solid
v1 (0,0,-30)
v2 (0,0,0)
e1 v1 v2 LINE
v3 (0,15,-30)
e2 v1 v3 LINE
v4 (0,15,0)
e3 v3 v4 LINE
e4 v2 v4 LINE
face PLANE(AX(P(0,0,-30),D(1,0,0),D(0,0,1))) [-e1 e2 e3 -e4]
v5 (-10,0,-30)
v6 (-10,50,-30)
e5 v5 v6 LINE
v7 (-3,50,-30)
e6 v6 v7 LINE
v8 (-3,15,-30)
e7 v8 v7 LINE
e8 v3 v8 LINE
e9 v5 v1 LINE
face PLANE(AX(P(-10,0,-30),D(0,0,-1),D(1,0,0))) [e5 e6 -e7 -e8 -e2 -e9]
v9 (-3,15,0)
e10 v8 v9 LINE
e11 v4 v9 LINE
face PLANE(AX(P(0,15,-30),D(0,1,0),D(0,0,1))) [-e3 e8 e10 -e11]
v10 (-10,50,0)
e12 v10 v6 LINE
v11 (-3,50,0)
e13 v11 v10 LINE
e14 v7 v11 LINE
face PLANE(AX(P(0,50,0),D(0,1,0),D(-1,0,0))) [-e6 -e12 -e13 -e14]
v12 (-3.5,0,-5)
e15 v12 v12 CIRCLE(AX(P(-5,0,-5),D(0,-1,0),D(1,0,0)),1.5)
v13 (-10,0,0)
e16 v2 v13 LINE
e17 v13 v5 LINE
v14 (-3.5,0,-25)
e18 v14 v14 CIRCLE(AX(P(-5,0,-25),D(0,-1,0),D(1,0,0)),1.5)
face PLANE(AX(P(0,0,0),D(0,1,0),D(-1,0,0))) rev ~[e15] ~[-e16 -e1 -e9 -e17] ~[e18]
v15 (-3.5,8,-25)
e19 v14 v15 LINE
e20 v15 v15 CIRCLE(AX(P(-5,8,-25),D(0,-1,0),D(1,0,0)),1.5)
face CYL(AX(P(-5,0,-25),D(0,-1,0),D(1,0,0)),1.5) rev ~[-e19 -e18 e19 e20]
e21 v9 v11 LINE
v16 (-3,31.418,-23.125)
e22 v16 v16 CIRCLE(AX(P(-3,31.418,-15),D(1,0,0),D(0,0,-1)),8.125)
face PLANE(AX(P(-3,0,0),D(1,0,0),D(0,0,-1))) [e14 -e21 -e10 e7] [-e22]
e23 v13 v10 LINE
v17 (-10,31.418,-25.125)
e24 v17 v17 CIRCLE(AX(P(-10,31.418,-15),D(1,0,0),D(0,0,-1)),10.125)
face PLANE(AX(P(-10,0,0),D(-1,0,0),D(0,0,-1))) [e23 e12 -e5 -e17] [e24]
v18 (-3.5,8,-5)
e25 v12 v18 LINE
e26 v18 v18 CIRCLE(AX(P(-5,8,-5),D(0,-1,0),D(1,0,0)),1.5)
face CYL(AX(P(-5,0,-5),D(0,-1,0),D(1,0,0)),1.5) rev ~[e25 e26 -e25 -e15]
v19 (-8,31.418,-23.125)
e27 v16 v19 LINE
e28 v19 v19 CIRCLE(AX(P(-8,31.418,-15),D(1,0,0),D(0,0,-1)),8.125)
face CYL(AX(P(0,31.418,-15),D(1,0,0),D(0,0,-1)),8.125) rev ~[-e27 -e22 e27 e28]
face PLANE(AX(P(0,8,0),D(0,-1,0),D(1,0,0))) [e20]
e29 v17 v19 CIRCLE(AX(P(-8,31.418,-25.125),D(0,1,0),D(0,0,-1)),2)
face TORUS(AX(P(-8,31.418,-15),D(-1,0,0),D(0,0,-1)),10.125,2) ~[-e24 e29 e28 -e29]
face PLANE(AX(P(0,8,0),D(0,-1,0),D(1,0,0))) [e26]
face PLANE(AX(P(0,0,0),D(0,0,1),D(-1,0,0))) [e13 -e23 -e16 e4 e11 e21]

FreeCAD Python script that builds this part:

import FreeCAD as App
import Part
import Sketcher


def edges_at(feature, points):
    """Names of the edges that pass closest to the given points."""
    edges = feature.Shape.Edges
    near = lambda p: min(range(len(edges)), key=lambda i: edges[i].distToShape(Part.Vertex(*p))[0])
    return sorted({f"Edge{near(p) + 1}" for p in points})


def add_polygon(sketch, points):
    """Adds a closed chain of lines whose ends are joined by coincident constraints."""
    first, n = sketch.GeometryCount, len(points)
    for a, b in zip(points, points[1:] + points[:1]):
        sketch.addGeometry(Part.LineSegment(App.Vector(*a, 0), App.Vector(*b, 0)), False)
    for i in range(n):
        sketch.addConstraint(Sketcher.Constraint("Coincident", first + i, 2, first + (i + 1) % n, 1))

doc = App.newDocument("Part")
body = doc.addObject("PartDesign::Body", "Body")

# Sketch on XZ plane
sketch1 = body.newObject("Sketcher::SketchObject", "Sketch")
sketch1.AttachmentSupport = (doc.getObject("XZ_Plane"), [""])
sketch1.MapMode = "FlatFace"
add_polygon(sketch1, [(-10, 0), (0, 0), (0, -30), (-10, -30)])  # lines 0-3
sketch1.addConstraint(Sketcher.Constraint("Horizontal", 0))
sketch1.addConstraint(Sketcher.Constraint("Vertical", 1))
sketch1.addConstraint(Sketcher.Constraint("Horizontal", 2))
sketch1.addConstraint(Sketcher.Constraint("Vertical", 3))
sketch1.addConstraint(Sketcher.Constraint("Coincident", 0, 2, -1, 1))
sketch1.addConstraint(Sketcher.Constraint("DistanceX", 0, 1, 0, 2, 10.0))
sketch1.addConstraint(Sketcher.Constraint("DistanceY", 1, 2, 1, 1, 30.0))
pad1 = body.newObject("PartDesign::Pad", "Pad")
pad1.Profile = sketch1
pad1.Length = 50
pad1.Reversed = True

# Sketch on XZ plane
sketch2 = body.newObject("Sketcher::SketchObject", "Sketch001")
sketch2.AttachmentSupport = (doc.getObject("XZ_Plane"), [""])
sketch2.MapMode = "FlatFace"
sketch2.addGeometry(Part.Circle(App.Vector(-5, -5, 0), App.Vector(0, 0, 1), 1.5), False)
sketch2.addGeometry(Part.Circle(App.Vector(-5, -25, 0), App.Vector(0, 0, 1), 1.5), False)
sketch2.addConstraint(Sketcher.Constraint("Equal", 0, 1))
sketch2.addConstraint(Sketcher.Constraint("Vertical", 0, 3, 1, 3))
sketch2.addConstraint(Sketcher.Constraint("Diameter", 0, 3.0))
sketch2.addConstraint(Sketcher.Constraint("DistanceX", 0, 3, -1, 1, 5.0))
sketch2.addConstraint(Sketcher.Constraint("DistanceY", 0, 3, -1, 1, 5.0))
sketch2.addConstraint(Sketcher.Constraint("DistanceY", 1, 3, -1, 1, 25.0))
pocket1 = body.newObject("PartDesign::Pocket", "Pocket")
pocket1.Profile = sketch2
pocket1.Length = 8

# Sketch on YZ plane
sketch3 = body.newObject("Sketcher::SketchObject", "Sketch002")
sketch3.AttachmentSupport = (doc.getObject("YZ_Plane"), [""])
sketch3.MapMode = "FlatFace"
sketch3.addGeometry(Part.Circle(App.Vector(31, -15, 0), App.Vector(0, 0, 1), 8), False)
sketch3.addConstraint(Sketcher.Constraint("Diameter", 0, 16.25))
sketch3.addConstraint(Sketcher.Constraint("DistanceY", 0, 3, -1, 1, 15.0))
sketch3.addConstraint(Sketcher.Constraint("DistanceX", -1, 1, 0, 3, 31.418))
pocket2 = body.newObject("PartDesign::Pocket", "Pocket001")
pocket2.Profile = sketch3
pocket2.Length = 10
doc.recompute()

fillet = body.newObject("PartDesign::Fillet", "Fillet")
fillet.Base = (pocket2, edges_at(pocket2, [(0, 31.418, -6.875), (-10, 31.418, -6.875)]))
fillet.Radius = 2

# Sketch on YZ plane
sketch4 = body.newObject("Sketcher::SketchObject", "Sketch003")
sketch4.AttachmentSupport = (doc.getObject("YZ_Plane"), [""])
sketch4.MapMode = "FlatFace"
add_polygon(sketch4, [(15, -30), (50, -30), (50, 0), (15, 0)])  # lines 0-3
sketch4.addConstraint(Sketcher.Constraint("Horizontal", 0))
sketch4.addConstraint(Sketcher.Constraint("Vertical", 1))
sketch4.addConstraint(Sketcher.Constraint("Horizontal", 2))
sketch4.addConstraint(Sketcher.Constraint("Vertical", 3))
sketch4.addConstraint(Sketcher.Constraint("PointOnObject", 1, 2, -1))
sketch4.addConstraint(Sketcher.Constraint("DistanceX", 0, 1, 0, 2, 35.0))
sketch4.addConstraint(Sketcher.Constraint("DistanceY", 1, 1, 1, 2, 30.0))
sketch4.addConstraint(Sketcher.Constraint("DistanceX", -1, 1, 0, 2, 50.0))
pocket3 = body.newObject("PartDesign::Pocket", "Pocket002")
pocket3.Profile = sketch4
pocket3.Length = 3

doc.recompute()
